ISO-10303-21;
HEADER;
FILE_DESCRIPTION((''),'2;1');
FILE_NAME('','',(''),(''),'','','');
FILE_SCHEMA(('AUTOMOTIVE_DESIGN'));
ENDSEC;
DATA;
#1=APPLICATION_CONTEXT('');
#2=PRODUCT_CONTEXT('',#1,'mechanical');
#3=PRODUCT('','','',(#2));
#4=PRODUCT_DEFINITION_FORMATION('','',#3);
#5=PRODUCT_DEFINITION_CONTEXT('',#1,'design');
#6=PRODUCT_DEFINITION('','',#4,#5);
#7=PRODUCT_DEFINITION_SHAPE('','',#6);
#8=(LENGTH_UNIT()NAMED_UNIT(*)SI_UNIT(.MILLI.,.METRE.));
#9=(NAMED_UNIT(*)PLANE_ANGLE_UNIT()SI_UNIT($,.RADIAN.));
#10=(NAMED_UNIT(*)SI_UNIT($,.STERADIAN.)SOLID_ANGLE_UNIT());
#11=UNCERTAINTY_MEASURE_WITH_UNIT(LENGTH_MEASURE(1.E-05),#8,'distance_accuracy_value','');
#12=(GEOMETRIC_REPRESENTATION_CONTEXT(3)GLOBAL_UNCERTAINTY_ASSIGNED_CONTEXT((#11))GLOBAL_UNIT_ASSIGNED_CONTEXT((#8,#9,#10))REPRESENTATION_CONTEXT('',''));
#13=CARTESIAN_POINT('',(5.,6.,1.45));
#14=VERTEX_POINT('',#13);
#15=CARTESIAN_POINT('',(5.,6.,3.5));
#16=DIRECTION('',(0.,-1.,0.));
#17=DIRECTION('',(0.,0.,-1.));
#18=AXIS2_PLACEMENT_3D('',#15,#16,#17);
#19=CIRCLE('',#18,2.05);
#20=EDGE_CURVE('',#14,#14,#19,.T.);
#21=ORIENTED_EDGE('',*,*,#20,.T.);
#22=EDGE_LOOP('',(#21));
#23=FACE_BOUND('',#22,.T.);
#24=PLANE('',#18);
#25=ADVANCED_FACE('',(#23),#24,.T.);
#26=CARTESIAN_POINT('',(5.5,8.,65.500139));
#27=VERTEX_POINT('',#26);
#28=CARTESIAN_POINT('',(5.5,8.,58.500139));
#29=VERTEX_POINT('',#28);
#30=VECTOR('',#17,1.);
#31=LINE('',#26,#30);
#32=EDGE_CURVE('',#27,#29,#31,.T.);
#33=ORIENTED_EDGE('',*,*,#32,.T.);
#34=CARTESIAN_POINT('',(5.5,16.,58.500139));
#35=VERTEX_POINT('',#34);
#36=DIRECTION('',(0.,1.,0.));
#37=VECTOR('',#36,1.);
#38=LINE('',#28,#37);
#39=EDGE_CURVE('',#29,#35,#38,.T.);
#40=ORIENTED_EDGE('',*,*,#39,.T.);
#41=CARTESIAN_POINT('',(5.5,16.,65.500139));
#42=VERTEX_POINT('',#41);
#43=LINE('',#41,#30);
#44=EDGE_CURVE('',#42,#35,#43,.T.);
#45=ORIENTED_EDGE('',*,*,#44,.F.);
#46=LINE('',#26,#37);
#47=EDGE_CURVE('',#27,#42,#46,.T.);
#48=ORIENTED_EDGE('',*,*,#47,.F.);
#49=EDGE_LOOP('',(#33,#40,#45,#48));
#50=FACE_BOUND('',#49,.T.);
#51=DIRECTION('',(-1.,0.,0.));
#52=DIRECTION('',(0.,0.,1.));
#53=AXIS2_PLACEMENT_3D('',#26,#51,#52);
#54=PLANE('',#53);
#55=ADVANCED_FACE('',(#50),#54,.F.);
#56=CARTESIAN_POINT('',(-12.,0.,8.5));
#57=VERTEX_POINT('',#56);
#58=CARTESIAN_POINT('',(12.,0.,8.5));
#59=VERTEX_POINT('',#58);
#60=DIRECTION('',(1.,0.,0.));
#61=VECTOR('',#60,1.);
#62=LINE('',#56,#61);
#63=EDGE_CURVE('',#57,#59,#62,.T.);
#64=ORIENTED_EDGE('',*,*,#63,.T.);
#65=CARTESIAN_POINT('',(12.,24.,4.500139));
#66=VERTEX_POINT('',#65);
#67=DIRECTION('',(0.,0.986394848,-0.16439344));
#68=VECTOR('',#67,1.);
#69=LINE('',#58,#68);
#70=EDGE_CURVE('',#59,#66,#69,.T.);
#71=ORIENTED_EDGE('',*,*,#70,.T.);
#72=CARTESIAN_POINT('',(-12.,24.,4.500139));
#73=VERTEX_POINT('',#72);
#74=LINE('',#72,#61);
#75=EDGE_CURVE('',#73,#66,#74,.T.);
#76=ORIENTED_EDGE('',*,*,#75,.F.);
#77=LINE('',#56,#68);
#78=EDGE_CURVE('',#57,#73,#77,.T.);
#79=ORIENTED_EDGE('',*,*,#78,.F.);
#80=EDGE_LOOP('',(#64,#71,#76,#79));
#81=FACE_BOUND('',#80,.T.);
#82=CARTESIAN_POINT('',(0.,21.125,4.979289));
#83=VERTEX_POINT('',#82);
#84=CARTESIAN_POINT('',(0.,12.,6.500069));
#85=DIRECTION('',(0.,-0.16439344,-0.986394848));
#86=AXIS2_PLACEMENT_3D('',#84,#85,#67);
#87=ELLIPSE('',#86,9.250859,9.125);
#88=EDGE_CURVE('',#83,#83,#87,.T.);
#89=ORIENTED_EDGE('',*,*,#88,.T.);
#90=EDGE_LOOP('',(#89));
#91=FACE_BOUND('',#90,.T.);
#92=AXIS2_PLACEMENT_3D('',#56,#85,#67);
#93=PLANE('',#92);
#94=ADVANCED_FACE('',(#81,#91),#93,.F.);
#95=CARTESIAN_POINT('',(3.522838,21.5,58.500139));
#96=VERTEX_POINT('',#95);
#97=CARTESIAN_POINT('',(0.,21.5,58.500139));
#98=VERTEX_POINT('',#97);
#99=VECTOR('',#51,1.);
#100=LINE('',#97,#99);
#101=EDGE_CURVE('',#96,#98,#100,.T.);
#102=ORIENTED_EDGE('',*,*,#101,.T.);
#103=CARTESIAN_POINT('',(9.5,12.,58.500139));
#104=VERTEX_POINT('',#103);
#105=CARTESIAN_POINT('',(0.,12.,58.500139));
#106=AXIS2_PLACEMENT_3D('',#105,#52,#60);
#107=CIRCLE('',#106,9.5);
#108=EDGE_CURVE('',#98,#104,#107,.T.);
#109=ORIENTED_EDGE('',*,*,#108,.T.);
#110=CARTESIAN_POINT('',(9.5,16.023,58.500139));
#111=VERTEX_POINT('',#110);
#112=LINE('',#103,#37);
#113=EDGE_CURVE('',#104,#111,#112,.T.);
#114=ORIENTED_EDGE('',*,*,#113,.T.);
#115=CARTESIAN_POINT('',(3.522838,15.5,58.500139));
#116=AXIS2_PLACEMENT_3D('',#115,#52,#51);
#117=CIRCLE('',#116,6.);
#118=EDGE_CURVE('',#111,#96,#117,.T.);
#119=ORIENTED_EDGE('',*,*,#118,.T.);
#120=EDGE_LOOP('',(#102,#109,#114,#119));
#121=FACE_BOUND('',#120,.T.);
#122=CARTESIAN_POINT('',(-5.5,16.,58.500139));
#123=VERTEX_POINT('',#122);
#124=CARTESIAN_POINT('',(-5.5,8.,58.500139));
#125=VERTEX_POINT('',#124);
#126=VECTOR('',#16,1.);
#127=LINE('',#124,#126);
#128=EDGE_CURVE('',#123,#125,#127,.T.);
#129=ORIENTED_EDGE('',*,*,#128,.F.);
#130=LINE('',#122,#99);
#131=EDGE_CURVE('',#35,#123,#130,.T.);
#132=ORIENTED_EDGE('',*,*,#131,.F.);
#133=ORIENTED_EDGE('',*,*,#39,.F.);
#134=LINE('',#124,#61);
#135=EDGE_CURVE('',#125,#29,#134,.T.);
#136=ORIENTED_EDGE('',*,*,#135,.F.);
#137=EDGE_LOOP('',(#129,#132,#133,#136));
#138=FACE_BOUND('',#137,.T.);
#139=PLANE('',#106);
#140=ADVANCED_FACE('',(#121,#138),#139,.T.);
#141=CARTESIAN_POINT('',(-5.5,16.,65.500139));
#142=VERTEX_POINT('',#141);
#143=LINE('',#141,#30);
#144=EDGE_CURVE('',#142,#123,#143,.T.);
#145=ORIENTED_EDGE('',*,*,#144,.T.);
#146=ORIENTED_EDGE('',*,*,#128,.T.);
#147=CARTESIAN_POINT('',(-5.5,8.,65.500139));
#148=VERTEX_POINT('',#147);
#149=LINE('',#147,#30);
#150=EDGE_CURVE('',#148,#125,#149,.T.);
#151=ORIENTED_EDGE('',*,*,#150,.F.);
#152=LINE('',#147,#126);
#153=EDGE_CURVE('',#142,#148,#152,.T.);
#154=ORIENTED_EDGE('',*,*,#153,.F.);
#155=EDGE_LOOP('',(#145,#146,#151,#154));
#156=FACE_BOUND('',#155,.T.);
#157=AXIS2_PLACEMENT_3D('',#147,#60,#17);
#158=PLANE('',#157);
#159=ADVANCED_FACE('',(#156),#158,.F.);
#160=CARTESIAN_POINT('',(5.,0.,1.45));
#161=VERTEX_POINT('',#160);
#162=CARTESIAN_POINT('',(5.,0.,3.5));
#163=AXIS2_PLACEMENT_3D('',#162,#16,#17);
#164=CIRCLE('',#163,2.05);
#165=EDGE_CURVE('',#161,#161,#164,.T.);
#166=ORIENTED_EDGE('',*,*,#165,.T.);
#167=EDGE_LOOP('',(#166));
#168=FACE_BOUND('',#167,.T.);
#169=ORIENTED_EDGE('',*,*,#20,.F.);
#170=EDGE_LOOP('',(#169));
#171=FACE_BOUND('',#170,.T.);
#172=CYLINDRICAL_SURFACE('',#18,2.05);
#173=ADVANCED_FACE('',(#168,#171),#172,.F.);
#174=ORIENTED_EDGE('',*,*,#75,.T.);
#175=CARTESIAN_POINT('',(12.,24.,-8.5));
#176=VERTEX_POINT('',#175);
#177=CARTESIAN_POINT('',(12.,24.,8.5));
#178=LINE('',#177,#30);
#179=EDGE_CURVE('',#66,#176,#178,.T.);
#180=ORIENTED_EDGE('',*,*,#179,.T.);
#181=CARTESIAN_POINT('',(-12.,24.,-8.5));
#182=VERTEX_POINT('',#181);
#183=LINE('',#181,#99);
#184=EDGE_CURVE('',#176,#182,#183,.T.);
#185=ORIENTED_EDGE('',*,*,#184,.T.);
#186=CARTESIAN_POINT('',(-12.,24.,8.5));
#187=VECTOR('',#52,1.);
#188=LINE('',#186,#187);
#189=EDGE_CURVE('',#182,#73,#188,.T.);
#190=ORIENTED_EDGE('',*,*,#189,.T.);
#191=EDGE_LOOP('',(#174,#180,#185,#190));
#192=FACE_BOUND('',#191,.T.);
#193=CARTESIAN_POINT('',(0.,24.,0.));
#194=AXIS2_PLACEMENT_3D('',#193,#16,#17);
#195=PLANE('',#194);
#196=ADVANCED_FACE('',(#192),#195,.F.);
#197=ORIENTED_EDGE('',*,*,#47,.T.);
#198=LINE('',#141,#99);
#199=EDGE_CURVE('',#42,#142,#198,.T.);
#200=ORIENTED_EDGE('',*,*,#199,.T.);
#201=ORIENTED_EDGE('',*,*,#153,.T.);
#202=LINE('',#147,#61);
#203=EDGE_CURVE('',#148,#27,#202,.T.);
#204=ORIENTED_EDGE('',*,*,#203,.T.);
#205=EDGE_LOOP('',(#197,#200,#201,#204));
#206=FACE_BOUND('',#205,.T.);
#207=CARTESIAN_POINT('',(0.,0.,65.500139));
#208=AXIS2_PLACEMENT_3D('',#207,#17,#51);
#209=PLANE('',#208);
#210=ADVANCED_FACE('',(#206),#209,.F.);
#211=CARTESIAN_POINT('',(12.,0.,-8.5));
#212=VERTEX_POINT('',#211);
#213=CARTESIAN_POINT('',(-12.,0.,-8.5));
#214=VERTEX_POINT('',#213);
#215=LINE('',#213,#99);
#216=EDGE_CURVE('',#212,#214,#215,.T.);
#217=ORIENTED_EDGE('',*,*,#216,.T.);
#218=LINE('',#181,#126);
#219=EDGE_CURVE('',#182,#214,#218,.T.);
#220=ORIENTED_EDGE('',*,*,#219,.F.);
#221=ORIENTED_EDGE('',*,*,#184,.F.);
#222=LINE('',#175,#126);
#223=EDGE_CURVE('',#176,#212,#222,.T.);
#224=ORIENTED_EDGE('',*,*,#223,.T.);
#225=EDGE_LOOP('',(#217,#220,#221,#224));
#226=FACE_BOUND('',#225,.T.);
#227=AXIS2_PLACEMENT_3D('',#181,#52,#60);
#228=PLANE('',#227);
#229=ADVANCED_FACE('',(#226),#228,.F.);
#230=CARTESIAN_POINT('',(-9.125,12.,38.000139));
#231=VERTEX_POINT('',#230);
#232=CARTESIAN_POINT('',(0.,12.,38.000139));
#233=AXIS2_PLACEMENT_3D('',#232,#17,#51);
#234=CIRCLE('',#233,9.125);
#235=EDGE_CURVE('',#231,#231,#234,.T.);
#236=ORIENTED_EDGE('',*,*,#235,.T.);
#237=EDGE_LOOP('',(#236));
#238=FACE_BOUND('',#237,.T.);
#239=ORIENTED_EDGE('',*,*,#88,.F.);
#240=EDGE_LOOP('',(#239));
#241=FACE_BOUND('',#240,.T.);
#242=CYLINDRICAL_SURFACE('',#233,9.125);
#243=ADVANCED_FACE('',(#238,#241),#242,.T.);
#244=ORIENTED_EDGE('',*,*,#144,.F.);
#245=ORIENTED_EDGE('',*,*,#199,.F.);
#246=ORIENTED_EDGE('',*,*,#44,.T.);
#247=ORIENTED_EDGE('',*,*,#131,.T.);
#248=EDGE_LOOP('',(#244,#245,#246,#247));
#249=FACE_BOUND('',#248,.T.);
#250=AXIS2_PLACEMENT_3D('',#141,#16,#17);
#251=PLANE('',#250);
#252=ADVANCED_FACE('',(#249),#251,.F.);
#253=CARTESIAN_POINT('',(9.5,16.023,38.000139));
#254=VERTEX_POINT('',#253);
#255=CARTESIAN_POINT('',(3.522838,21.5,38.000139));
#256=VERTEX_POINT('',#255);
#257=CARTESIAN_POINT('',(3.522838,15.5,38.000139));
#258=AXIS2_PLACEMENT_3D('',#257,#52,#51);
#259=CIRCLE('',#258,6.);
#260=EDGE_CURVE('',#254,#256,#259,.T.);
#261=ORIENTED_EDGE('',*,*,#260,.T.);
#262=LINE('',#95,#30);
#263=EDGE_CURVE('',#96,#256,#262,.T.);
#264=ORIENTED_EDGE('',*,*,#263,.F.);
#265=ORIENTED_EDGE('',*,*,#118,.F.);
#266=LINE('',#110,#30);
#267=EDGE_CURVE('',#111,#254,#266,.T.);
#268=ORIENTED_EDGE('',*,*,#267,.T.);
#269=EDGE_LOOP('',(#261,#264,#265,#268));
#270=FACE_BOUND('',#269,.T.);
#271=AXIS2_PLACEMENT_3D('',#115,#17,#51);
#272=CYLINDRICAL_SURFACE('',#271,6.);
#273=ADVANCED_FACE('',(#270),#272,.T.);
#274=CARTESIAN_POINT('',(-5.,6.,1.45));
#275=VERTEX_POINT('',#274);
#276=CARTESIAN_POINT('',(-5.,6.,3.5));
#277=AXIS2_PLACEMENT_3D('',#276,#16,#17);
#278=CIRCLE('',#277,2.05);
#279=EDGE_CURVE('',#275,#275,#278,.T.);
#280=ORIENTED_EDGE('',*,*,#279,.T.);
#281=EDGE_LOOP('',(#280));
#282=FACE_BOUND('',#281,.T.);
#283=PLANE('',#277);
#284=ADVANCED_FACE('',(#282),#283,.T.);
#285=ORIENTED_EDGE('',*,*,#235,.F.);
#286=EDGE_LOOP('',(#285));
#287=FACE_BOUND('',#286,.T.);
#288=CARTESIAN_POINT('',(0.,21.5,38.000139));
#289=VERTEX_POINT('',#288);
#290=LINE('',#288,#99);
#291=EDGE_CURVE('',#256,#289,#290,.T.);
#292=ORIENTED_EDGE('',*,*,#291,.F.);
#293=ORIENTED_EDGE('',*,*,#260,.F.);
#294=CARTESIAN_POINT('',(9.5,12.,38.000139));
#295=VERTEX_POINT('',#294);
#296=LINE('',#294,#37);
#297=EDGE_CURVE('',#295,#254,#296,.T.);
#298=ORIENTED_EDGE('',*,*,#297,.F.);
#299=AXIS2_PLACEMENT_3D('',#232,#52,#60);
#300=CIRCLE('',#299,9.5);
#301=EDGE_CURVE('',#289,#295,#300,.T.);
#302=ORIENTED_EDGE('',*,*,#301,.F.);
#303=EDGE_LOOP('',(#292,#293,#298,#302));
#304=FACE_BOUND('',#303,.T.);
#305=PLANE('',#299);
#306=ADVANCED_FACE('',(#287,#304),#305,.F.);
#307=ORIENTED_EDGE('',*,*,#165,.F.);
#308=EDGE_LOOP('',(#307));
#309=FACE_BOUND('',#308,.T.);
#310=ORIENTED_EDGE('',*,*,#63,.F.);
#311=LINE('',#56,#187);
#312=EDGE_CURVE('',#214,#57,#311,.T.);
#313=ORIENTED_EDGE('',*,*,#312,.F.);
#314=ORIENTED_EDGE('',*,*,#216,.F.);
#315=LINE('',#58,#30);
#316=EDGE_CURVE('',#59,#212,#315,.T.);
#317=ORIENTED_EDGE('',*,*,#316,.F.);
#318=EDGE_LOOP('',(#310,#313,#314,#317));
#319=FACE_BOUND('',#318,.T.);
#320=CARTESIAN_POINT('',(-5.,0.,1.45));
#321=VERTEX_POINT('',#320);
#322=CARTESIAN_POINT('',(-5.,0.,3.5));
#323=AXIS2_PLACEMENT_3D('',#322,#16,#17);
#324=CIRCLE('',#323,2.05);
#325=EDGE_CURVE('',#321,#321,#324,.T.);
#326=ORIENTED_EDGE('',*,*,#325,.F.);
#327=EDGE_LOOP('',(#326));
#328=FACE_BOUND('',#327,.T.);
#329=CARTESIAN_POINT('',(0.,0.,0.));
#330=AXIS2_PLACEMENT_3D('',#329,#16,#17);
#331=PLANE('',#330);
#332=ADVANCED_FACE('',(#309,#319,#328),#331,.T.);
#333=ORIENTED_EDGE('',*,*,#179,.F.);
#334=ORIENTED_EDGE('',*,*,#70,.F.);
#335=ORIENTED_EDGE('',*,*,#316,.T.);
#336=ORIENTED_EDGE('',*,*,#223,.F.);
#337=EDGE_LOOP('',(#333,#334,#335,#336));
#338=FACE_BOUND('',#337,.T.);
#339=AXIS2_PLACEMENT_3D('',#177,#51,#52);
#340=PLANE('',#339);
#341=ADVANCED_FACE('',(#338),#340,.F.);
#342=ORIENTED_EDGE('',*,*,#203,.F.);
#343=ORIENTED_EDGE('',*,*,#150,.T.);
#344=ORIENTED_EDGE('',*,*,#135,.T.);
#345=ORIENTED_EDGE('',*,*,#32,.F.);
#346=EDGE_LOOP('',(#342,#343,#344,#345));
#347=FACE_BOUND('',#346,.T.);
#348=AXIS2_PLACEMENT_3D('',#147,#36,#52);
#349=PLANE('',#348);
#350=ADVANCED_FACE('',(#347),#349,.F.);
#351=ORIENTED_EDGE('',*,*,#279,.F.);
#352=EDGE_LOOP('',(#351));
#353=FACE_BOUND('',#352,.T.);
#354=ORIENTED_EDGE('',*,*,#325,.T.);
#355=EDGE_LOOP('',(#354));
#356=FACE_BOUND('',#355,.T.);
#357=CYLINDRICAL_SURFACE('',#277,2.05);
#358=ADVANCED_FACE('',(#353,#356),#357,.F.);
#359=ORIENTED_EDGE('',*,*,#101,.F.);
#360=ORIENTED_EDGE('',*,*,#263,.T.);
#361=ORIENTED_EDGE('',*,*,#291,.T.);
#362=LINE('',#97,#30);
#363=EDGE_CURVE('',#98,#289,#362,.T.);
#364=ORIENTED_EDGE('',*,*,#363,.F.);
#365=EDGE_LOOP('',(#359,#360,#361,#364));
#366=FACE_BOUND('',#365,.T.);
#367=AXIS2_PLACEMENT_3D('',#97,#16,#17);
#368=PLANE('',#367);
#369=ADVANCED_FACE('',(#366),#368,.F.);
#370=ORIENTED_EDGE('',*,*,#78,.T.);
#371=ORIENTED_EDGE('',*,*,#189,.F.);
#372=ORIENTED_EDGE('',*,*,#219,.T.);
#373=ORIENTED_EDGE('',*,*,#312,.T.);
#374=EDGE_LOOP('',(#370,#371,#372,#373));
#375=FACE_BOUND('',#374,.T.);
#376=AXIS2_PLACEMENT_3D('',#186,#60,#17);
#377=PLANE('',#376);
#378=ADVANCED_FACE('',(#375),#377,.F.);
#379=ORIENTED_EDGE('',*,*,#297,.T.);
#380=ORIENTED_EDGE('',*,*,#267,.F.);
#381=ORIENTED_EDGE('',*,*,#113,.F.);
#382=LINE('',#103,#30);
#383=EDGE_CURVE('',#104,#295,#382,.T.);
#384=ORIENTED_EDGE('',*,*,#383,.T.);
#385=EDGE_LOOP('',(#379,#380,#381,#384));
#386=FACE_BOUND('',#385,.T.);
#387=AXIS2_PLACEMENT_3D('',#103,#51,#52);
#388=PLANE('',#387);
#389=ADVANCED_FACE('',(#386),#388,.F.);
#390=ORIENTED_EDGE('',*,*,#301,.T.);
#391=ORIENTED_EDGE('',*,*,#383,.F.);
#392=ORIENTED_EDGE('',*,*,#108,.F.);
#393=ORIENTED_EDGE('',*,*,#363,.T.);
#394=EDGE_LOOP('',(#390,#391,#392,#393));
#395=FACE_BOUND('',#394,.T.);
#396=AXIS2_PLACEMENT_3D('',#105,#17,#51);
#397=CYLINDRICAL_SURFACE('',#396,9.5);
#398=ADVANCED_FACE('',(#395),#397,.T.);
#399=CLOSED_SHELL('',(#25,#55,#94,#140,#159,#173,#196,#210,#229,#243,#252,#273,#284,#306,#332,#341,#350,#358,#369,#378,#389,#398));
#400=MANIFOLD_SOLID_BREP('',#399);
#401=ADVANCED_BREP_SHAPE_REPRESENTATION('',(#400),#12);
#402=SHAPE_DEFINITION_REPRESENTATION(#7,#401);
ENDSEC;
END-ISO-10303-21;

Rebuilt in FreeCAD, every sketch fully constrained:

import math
import FreeCAD as App
import Part
import Sketcher
Q = App.Units.Quantity

doc = App.newDocument("Part")
body = doc.addObject("PartDesign::Body", "Body")

# Sketch on XZ plane
sketch1 = body.newObject("Sketcher::SketchObject", "Sketch")
sketch1.AttachmentSupport = (doc.getObject("XZ_Plane"), [""])
sketch1.MapMode = "FlatFace"
sketch1.addGeometry(Part.LineSegment(App.Vector(-12, -8, 0), App.Vector(-12, 8, 0)), False)
sketch1.addGeometry(Part.LineSegment(App.Vector(-12, 8, 0), App.Vector(12, 8, 0)), False)
sketch1.addGeometry(Part.LineSegment(App.Vector(12, 8, 0), App.Vector(12, -8, 0)), False)
sketch1.addGeometry(Part.LineSegment(App.Vector(12, -8, 0), App.Vector(-12, -8, 0)), False)
sketch1.addConstraint(Sketcher.Constraint("Coincident", 0, 2, 1, 1))
sketch1.addConstraint(Sketcher.Constraint("Coincident", 1, 2, 2, 1))
sketch1.addConstraint(Sketcher.Constraint("Coincident", 2, 2, 3, 1))
sketch1.addConstraint(Sketcher.Constraint("Coincident", 3, 2, 0, 1))
sketch1.addConstraint(Sketcher.Constraint("Vertical", 0))
sketch1.addConstraint(Sketcher.Constraint("Horizontal", 1))
sketch1.addConstraint(Sketcher.Constraint("Vertical", 2))
sketch1.addConstraint(Sketcher.Constraint("Horizontal", 3))
sketch1.addConstraint(Sketcher.Constraint("Symmetric", 0, 2, 2, 2, -1, 1))
sketch1.addConstraint(Sketcher.Constraint("DistanceX", 1, 1, 1, 2, Q("24 mm")))
sketch1.addConstraint(Sketcher.Constraint("DistanceY", 0, 1, 0, 2, Q("17 mm")))
pad1 = body.newObject("PartDesign::Pad", "Pad")
pad1.Profile = sketch1
pad1.Length = 24
pad1.Reversed = True

# Sketch on YZ plane
sketch2 = body.newObject("Sketcher::SketchObject", "Sketch001")
sketch2.AttachmentSupport = (doc.getObject("YZ_Plane"), [""])
sketch2.MapMode = "FlatFace"
sketch2.AttachmentOffset = App.Placement(App.Vector(0, 0, 12), App.Rotation())
sketch2.addGeometry(Part.LineSegment(App.Vector(0, 8.5, 0), App.Vector(24, 4.5, 0)), False)
sketch2.addGeometry(Part.LineSegment(App.Vector(24, 4.5, 0), App.Vector(24, 8.5, 0)), False)
sketch2.addGeometry(Part.LineSegment(App.Vector(24, 8.5, 0), App.Vector(0, 8.5, 0)), False)
sketch2.addConstraint(Sketcher.Constraint("Coincident", 0, 2, 1, 1))
sketch2.addConstraint(Sketcher.Constraint("Coincident", 1, 2, 2, 1))
sketch2.addConstraint(Sketcher.Constraint("Coincident", 2, 2, 0, 1))
sketch2.addConstraint(Sketcher.Constraint("Vertical", 1))
sketch2.addConstraint(Sketcher.Constraint("Horizontal", 2))
sketch2.addConstraint(Sketcher.Constraint("PointOnObject", 2, 2, -2))
sketch2.addConstraint(Sketcher.Constraint("DistanceX", 2, 2, 2, 1, Q("24 mm")))
sketch2.addConstraint(Sketcher.Constraint("DistanceY", -1, 1, 1, 2, Q("8.5 mm")))
sketch2.addConstraint(Sketcher.Constraint("DistanceY", 1, 1, 1, 2, Q("3.999861 mm")))
pocket1 = body.newObject("PartDesign::Pocket", "Pocket")
pocket1.Profile = sketch2
pocket1.Length = 24

# Sketch on XY plane
sketch3 = body.newObject("Sketcher::SketchObject", "Sketch002")
sketch3.AttachmentSupport = (doc.getObject("XY_Plane"), [""])
sketch3.MapMode = "FlatFace"
sketch3.AttachmentOffset = App.Placement(App.Vector(0, 0, 4.500139), App.Rotation())
sketch3.addGeometry(Part.Circle(App.Vector(0, 12, 0), App.Vector(0, 0, 1), 9), False)
sketch3.addConstraint(Sketcher.Constraint("PointOnObject", 0, 3, -2))
sketch3.addConstraint(Sketcher.Constraint("Diameter", 0, Q("18.25 mm")))
sketch3.addConstraint(Sketcher.Constraint("DistanceY", -1, 1, 0, 3, Q("12 mm")))
pad2 = body.newObject("PartDesign::Pad", "Pad001")
pad2.Profile = sketch3
pad2.Length = 33.5

# Sketch on XY plane
sketch4 = body.newObject("Sketcher::SketchObject", "Sketch003")
sketch4.AttachmentSupport = (doc.getObject("XY_Plane"), [""])
sketch4.MapMode = "FlatFace"
sketch4.AttachmentOffset = App.Placement(App.Vector(0, 0, 38.000139), App.Rotation())
sketch4.addGeometry(Part.LineSegment(App.Vector(3.5, 21.5, 0), App.Vector(0, 21.5, 0)), False)
sketch4.addGeometry(Part.ArcOfCircle(Part.Circle(App.Vector(0, 12, 0), App.Vector(0, 0, 1), 9.5), math.radians(90), math.radians(360)), False)
sketch4.addGeometry(Part.LineSegment(App.Vector(9.5, 12, 0), App.Vector(9.5, 16, 0)), False)
sketch4.addGeometry(Part.ArcOfCircle(Part.Circle(App.Vector(3.5, 15.5, 0), App.Vector(0, 0, 1), 6), math.radians(5), math.radians(90)), False)
sketch4.addConstraint(Sketcher.Constraint("Tangent", 0, 2, 1, 1))
sketch4.addConstraint(Sketcher.Constraint("Tangent", 1, 2, 2, 1))
sketch4.addConstraint(Sketcher.Constraint("Coincident", 2, 2, 3, 1))
sketch4.addConstraint(Sketcher.Constraint("Tangent", 3, 2, 0, 1))
sketch4.addConstraint(Sketcher.Constraint("Horizontal", 0))
sketch4.addConstraint(Sketcher.Constraint("Vertical", 2))
sketch4.addConstraint(Sketcher.Constraint("PointOnObject", 1, 3, -2))
sketch4.addConstraint(Sketcher.Constraint("Radius", 3, Q("6 mm")))
sketch4.addConstraint(Sketcher.Constraint("Radius", 1, Q("9.5 mm")))
sketch4.addConstraint(Sketcher.Constraint("DistanceY", -1, 1, 1, 3, Q("12 mm")))
sketch4.addConstraint(Sketcher.Constraint("DistanceY", 2, 1, 2, 2, Q("4.023 mm")))
pad3 = body.newObject("PartDesign::Pad", "Pad002")
pad3.Profile = sketch4
pad3.Length = 20.5

# Sketch on XY plane
sketch5 = body.newObject("Sketcher::SketchObject", "Sketch004")
sketch5.AttachmentSupport = (doc.getObject("XY_Plane"), [""])
sketch5.MapMode = "FlatFace"
sketch5.AttachmentOffset = App.Placement(App.Vector(0, 0, 58.500139), App.Rotation())
sketch5.addGeometry(Part.LineSegment(App.Vector(-6, 16, 0), App.Vector(-6, 8, 0)), False)
sketch5.addGeometry(Part.LineSegment(App.Vector(-6, 8, 0), App.Vector(6, 8, 0)), False)
sketch5.addGeometry(Part.LineSegment(App.Vector(6, 8, 0), App.Vector(6, 16, 0)), False)
sketch5.addGeometry(Part.LineSegment(App.Vector(6, 16, 0), App.Vector(-6, 16, 0)), False)
sketch5.addConstraint(Sketcher.Constraint("Coincident", 0, 2, 1, 1))
sketch5.addConstraint(Sketcher.Constraint("Coincident", 1, 2, 2, 1))
sketch5.addConstraint(Sketcher.Constraint("Coincident", 2, 2, 3, 1))
sketch5.addConstraint(Sketcher.Constraint("Coincident", 3, 2, 0, 1))
sketch5.addConstraint(Sketcher.Constraint("Vertical", 0))
sketch5.addConstraint(Sketcher.Constraint("Horizontal", 1))
sketch5.addConstraint(Sketcher.Constraint("Vertical", 2))
sketch5.addConstraint(Sketcher.Constraint("Horizontal", 3))
sketch5.addConstraint(Sketcher.Constraint("DistanceX", 1, 1, 1, 2, Q("11 mm")))
sketch5.addConstraint(Sketcher.Constraint("DistanceY", 0, 2, 0, 1, Q("8 mm")))
sketch5.addConstraint(Sketcher.Constraint("DistanceY", -1, 1, 0, 2, Q("8 mm")))
sketch5.addConstraint(Sketcher.Constraint("DistanceX", 0, 2, -1, 1, Q("5.5 mm")))
pad4 = body.newObject("PartDesign::Pad", "Pad003")
pad4.Profile = sketch5
pad4.Length = 7

# Sketch on XZ plane
sketch6 = body.newObject("Sketcher::SketchObject", "Sketch005")
sketch6.AttachmentSupport = (doc.getObject("XZ_Plane"), [""])
sketch6.MapMode = "FlatFace"
sketch6.addGeometry(Part.Circle(App.Vector(-5, 3.5, 0), App.Vector(0, 0, 1), 2), False)
sketch6.addGeometry(Part.Circle(App.Vector(5, 3.5, 0), App.Vector(0, 0, 1), 2), False)
sketch6.addConstraint(Sketcher.Constraint("Equal", 0, 1))
sketch6.addConstraint(Sketcher.Constraint("Symmetric", 0, 3, 1, 3, -2))
sketch6.addConstraint(Sketcher.Constraint("Diameter", 0, Q("4.1 mm")))
sketch6.addConstraint(Sketcher.Constraint("DistanceX", 0, 3, -1, 1, Q("5 mm")))
sketch6.addConstraint(Sketcher.Constraint("DistanceY", -1, 1, 0, 3, Q("3.5 mm")))
pocket2 = body.newObject("PartDesign::Pocket", "Pocket001")
pocket2.Profile = sketch6
pocket2.Length = 6

doc.recompute()
